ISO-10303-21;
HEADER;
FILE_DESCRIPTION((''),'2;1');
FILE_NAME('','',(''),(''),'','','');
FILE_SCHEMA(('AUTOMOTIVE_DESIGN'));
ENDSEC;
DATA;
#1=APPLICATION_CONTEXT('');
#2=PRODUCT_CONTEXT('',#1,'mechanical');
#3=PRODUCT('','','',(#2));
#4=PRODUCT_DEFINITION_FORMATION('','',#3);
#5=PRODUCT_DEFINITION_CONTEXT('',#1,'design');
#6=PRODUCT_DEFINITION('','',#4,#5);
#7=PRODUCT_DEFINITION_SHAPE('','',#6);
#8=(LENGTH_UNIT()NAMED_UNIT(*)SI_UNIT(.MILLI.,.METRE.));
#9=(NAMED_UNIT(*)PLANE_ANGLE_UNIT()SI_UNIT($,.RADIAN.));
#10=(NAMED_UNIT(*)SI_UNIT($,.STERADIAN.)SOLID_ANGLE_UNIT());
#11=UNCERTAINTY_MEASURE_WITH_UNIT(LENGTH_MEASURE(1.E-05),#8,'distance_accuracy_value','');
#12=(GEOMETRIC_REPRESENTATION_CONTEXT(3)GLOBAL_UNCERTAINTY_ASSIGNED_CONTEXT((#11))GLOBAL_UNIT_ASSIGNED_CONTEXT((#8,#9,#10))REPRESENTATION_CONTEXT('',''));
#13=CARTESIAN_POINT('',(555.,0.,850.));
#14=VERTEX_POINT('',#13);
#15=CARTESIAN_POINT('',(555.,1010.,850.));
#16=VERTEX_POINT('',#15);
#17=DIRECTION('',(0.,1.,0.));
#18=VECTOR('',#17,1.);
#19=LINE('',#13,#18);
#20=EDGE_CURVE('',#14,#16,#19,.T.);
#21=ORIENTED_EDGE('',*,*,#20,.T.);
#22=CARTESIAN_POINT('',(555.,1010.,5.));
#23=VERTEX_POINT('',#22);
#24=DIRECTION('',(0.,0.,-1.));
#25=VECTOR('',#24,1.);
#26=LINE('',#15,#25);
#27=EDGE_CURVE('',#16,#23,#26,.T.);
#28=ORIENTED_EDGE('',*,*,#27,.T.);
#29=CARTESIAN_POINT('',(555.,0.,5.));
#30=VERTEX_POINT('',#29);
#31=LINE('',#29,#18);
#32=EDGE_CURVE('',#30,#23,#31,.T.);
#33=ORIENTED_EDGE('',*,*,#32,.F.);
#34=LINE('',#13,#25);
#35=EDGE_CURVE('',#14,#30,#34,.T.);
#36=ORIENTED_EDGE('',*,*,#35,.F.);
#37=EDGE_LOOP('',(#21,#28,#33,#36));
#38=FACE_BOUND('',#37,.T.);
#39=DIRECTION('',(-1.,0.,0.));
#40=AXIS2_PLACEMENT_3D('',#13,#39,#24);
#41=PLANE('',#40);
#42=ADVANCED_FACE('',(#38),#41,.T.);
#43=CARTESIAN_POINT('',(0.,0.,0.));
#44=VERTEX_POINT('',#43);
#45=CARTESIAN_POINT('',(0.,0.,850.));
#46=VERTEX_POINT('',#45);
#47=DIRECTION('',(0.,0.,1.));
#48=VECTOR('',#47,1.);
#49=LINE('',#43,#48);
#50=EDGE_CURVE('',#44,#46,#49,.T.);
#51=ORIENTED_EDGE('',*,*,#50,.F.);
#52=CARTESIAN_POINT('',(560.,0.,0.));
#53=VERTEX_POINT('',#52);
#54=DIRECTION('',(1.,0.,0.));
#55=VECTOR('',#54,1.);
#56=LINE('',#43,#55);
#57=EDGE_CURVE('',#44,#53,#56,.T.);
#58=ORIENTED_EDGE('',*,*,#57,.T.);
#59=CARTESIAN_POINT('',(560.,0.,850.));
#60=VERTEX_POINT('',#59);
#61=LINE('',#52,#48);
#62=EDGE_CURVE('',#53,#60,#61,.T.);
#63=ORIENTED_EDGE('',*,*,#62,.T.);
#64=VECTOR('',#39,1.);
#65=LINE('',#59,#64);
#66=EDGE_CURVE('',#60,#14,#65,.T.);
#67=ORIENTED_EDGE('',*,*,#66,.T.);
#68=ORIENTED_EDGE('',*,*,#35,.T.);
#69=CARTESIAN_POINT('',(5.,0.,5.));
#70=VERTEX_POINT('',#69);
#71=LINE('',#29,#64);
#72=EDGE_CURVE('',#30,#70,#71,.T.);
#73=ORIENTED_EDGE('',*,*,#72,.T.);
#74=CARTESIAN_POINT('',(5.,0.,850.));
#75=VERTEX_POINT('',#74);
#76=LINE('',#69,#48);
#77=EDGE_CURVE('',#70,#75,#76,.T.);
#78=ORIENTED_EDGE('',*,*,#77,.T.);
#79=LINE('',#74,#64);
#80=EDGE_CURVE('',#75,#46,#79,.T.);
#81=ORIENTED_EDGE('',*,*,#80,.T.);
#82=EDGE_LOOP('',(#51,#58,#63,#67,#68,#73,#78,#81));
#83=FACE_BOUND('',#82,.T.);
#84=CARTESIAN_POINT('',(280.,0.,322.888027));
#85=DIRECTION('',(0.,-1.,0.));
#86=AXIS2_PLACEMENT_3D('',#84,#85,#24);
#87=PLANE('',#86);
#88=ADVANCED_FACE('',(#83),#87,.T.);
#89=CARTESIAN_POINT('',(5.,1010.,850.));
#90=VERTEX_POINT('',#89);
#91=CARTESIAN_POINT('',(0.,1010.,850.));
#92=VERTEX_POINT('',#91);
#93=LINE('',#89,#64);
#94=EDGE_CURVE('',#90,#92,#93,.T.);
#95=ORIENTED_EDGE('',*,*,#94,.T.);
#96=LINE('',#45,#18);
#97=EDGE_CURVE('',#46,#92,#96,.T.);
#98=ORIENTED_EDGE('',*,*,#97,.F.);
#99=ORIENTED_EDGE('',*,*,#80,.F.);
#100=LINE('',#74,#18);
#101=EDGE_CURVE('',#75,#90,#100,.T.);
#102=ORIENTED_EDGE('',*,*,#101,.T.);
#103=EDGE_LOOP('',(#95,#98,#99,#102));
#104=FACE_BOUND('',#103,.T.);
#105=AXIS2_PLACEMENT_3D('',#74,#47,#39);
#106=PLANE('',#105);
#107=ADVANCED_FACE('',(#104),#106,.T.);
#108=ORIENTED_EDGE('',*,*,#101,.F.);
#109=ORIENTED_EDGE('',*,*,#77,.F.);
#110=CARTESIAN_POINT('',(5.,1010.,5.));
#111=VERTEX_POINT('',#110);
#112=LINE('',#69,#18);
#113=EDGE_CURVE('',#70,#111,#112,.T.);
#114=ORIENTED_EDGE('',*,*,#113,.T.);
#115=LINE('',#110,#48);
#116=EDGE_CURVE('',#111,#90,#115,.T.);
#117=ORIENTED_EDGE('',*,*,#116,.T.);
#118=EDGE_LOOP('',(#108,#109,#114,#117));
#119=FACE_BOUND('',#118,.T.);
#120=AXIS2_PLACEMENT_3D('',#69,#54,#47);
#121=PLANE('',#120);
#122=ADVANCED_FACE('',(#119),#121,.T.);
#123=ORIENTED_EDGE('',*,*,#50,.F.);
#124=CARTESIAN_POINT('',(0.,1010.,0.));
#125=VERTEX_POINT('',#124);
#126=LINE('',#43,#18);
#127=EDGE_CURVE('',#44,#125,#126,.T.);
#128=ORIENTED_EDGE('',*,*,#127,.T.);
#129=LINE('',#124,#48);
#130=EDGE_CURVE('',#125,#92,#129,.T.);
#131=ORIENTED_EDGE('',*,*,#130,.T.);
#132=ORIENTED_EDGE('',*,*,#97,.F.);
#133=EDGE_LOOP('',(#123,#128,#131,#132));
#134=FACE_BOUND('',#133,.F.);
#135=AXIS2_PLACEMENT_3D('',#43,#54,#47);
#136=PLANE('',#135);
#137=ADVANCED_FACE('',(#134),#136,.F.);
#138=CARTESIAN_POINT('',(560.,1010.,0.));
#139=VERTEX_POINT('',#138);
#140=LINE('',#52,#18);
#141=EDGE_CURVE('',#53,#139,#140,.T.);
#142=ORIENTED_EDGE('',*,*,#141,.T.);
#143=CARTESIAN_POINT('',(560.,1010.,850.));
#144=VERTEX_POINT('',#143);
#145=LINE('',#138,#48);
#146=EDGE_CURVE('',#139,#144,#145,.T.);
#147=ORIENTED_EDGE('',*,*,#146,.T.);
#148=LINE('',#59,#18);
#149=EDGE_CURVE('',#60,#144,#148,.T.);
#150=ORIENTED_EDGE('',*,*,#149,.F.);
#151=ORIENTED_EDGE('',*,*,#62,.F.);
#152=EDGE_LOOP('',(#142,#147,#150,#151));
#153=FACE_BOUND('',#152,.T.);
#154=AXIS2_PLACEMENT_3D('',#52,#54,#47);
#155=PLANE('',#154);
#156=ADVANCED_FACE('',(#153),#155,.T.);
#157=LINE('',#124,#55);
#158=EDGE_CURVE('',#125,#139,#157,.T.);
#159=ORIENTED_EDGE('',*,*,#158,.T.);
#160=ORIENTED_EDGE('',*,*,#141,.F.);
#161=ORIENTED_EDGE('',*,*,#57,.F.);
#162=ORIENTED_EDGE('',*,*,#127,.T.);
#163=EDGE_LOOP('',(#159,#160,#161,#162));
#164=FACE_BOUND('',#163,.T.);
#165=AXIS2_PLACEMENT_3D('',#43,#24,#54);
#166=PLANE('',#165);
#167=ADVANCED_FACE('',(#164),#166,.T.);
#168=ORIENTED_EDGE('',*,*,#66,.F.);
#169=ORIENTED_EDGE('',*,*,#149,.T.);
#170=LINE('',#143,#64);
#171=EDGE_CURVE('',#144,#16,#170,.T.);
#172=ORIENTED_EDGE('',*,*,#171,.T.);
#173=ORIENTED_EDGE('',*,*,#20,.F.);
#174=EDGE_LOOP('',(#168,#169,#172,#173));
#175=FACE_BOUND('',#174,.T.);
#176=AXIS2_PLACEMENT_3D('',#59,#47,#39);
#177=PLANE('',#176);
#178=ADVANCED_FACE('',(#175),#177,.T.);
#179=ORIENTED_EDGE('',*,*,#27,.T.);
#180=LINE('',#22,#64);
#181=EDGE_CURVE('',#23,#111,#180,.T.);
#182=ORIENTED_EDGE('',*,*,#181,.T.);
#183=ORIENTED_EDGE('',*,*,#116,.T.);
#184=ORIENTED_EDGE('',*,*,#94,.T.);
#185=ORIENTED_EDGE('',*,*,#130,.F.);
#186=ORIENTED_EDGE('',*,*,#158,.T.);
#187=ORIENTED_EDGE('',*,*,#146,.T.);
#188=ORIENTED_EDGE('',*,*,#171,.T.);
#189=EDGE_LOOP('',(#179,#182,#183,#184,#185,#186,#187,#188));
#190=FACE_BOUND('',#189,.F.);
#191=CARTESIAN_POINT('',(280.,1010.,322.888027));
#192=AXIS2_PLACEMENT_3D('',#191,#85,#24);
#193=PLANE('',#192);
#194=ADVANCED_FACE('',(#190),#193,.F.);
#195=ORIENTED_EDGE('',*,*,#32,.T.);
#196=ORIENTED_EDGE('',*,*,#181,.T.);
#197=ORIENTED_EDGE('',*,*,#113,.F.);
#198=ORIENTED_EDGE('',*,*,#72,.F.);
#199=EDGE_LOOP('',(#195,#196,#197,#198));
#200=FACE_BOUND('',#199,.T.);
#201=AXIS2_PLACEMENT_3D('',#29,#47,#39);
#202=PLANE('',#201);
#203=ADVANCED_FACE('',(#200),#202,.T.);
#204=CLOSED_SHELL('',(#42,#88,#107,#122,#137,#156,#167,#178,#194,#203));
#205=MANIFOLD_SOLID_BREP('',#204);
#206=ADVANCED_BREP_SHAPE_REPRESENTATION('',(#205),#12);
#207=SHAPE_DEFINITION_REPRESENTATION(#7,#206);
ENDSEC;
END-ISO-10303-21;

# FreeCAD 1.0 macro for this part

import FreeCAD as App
import Part
import Sketcher

V = App.Vector


def add_polygon(sketch, points):
    """Adds a closed chain of lines whose ends are joined by coincident constraints."""
    first, n = sketch.GeometryCount, len(points)
    for a, b in zip(points, points[1:] + points[:1]):
        sketch.addGeometry(Part.LineSegment(App.Vector(*a, 0), App.Vector(*b, 0)), False)
    for i in range(n):
        sketch.addConstraint(Sketcher.Constraint("Coincident", first + i, 2, first + (i + 1) % n, 1))

doc = App.newDocument("Part")
body = doc.addObject("PartDesign::Body", "Body")

sketch1 = body.newObject("Sketcher::SketchObject", "Sketch")
sketch1.AttachmentSupport = (doc.getObject("XZ_Plane"), [""])
sketch1.MapMode = "FlatFace"
add_polygon(sketch1, [(0, 850), (0, 0), (560, 0), (560, 850), (555, 850), (555, 5), (5, 5), (5, 850)])
sketch1.addConstraint([
    Sketcher.Constraint("Vertical", 0),
    Sketcher.Constraint("Horizontal", 1),
    Sketcher.Constraint("Vertical", 2),
    Sketcher.Constraint("Horizontal", 3),
    Sketcher.Constraint("Vertical", 4),
    Sketcher.Constraint("Horizontal", 5),
    Sketcher.Constraint("Vertical", 6),
    Sketcher.Constraint("Horizontal", 7),
    Sketcher.Constraint("Coincident", 0, 2, -1, 1),
    Sketcher.Constraint("Horizontal", 3, 2, 6, 2),
    Sketcher.Constraint("Equal", 3, 7),
    Sketcher.Constraint("DistanceX", 1, 1, 1, 2, 560.0),
    Sketcher.Constraint("DistanceX", 3, 2, 3, 1, 5.0),
    Sketcher.Constraint("DistanceY", 0, 2, 0, 1, 850.0),
    Sketcher.Constraint("DistanceY", 4, 2, 4, 1, 845.0),
])
pad1 = body.newObject("PartDesign::Pad", "Pad")
pad1.Profile = sketch1
pad1.Length = 1010
pad1.Reversed = True

doc.recompute()
